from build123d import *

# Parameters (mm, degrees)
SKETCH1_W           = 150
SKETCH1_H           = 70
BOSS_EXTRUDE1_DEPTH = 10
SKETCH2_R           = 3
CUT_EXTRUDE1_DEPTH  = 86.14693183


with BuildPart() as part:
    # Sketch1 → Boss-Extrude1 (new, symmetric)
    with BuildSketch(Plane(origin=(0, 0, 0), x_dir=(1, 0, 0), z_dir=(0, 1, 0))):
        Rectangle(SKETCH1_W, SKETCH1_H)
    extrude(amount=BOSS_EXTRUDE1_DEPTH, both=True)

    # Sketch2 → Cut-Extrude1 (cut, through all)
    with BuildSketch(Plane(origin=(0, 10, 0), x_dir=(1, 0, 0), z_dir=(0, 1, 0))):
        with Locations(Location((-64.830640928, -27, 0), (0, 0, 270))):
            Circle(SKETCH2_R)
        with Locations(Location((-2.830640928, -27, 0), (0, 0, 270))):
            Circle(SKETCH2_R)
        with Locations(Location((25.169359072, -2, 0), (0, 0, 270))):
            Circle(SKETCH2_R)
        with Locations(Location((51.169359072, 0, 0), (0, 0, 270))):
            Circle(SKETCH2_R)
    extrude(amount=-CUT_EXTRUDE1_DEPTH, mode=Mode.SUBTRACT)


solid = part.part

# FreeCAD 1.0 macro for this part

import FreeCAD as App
import Part
import Sketcher
from FreeCAD import Vector
Q = App.Units.Quantity


def add_polygon(sketch, points):
    """Adds a closed chain of lines whose ends are joined by coincident constraints."""
    first, n = sketch.GeometryCount, len(points)
    for a, b in zip(points, points[1:] + points[:1]):
        sketch.addGeometry(Part.LineSegment(App.Vector(*a, 0), App.Vector(*b, 0)), False)
    for i in range(n):
        sketch.addConstraint(Sketcher.Constraint("Coincident", first + i, 2, first + (i + 1) % n, 1))

doc = App.newDocument("Part")
body = doc.addObject("PartDesign::Body", "Body")

# Sketch on XZ plane
sketch1 = body.newObject("Sketcher::SketchObject", "Sketch")
sketch1.AttachmentSupport = (doc.getObject("XZ_Plane"), [""])
sketch1.MapMode = "FlatFace"
add_polygon(sketch1, [(-75, -35), (-75, 35), (75, 35), (75, -35)])  # lines 0-3
sketch1.addConstraint([
    Sketcher.Constraint("Vertical", 0),
    Sketcher.Constraint("Horizontal", 1),
    Sketcher.Constraint("Vertical", 2),
    Sketcher.Constraint("Horizontal", 3),
    Sketcher.Constraint("Symmetric", 0, 2, 2, 2, -1, 1),
    Sketcher.Constraint("DistanceX", 1, 1, 1, 2, Q("150 mm")),
    Sketcher.Constraint("DistanceY", 0, 1, 0, 2, Q("70 mm")),
])
pad1 = body.newObject("PartDesign::Pad", "Pad")
pad1.Profile = sketch1
pad1.Length = 20
pad1.Midplane = True

# Sketch on XZ plane
sketch2 = body.newObject("Sketcher::SketchObject", "Sketch001")
sketch2.AttachmentSupport = (doc.getObject("XZ_Plane"), [""])
sketch2.MapMode = "FlatFace"
sketch2.AttachmentOffset = App.Placement(Vector(0, 0, -10), App.Rotation())
sketch2.addGeometry([
    Part.Circle(Vector(-64.830641, 27, 0), Vector(0, 0, 1), 3),
    Part.Circle(Vector(-2.830641, 27, 0), Vector(0, 0, 1), 3),
    Part.Circle(Vector(25.169359, 2, 0), Vector(0, 0, 1), 3),
    Part.Circle(Vector(51.169359, 0, 0), Vector(0, 0, 1), 3),
], False)
sketch2.addConstraint([
    Sketcher.Constraint("Equal", 0, 1),
    Sketcher.Constraint("Equal", 1, 2),
    Sketcher.Constraint("Equal", 2, 3),
    Sketcher.Constraint("PointOnObject", 3, 3, -1),
    Sketcher.Constraint("Horizontal", 0, 3, 1, 3),
    Sketcher.Constraint("Diameter", 0, Q("6 mm")),
    Sketcher.Constraint("DistanceY", -1, 1, 0, 3, Q("27 mm")),
    Sketcher.Constraint("DistanceY", -1, 1, 2, 3, Q("2 mm")),
    Sketcher.Constraint("DistanceX", 0, 3, 1, 3, Q("62 mm")),
    Sketcher.Constraint("DistanceX", 1, 3, 2, 3, Q("28 mm")),
    Sketcher.Constraint("DistanceX", 2, 3, 3, 3, Q("26 mm")),
    Sketcher.Constraint("DistanceX", 0, 3, -1, 1, Q("64.830641 mm")),
])
pocket1 = body.newObject("PartDesign::Pocket", "Pocket")
pocket1.Profile = sketch2
pocket1.Type = "ThroughAll"
pocket1.Reversed = True

doc.recompute()
